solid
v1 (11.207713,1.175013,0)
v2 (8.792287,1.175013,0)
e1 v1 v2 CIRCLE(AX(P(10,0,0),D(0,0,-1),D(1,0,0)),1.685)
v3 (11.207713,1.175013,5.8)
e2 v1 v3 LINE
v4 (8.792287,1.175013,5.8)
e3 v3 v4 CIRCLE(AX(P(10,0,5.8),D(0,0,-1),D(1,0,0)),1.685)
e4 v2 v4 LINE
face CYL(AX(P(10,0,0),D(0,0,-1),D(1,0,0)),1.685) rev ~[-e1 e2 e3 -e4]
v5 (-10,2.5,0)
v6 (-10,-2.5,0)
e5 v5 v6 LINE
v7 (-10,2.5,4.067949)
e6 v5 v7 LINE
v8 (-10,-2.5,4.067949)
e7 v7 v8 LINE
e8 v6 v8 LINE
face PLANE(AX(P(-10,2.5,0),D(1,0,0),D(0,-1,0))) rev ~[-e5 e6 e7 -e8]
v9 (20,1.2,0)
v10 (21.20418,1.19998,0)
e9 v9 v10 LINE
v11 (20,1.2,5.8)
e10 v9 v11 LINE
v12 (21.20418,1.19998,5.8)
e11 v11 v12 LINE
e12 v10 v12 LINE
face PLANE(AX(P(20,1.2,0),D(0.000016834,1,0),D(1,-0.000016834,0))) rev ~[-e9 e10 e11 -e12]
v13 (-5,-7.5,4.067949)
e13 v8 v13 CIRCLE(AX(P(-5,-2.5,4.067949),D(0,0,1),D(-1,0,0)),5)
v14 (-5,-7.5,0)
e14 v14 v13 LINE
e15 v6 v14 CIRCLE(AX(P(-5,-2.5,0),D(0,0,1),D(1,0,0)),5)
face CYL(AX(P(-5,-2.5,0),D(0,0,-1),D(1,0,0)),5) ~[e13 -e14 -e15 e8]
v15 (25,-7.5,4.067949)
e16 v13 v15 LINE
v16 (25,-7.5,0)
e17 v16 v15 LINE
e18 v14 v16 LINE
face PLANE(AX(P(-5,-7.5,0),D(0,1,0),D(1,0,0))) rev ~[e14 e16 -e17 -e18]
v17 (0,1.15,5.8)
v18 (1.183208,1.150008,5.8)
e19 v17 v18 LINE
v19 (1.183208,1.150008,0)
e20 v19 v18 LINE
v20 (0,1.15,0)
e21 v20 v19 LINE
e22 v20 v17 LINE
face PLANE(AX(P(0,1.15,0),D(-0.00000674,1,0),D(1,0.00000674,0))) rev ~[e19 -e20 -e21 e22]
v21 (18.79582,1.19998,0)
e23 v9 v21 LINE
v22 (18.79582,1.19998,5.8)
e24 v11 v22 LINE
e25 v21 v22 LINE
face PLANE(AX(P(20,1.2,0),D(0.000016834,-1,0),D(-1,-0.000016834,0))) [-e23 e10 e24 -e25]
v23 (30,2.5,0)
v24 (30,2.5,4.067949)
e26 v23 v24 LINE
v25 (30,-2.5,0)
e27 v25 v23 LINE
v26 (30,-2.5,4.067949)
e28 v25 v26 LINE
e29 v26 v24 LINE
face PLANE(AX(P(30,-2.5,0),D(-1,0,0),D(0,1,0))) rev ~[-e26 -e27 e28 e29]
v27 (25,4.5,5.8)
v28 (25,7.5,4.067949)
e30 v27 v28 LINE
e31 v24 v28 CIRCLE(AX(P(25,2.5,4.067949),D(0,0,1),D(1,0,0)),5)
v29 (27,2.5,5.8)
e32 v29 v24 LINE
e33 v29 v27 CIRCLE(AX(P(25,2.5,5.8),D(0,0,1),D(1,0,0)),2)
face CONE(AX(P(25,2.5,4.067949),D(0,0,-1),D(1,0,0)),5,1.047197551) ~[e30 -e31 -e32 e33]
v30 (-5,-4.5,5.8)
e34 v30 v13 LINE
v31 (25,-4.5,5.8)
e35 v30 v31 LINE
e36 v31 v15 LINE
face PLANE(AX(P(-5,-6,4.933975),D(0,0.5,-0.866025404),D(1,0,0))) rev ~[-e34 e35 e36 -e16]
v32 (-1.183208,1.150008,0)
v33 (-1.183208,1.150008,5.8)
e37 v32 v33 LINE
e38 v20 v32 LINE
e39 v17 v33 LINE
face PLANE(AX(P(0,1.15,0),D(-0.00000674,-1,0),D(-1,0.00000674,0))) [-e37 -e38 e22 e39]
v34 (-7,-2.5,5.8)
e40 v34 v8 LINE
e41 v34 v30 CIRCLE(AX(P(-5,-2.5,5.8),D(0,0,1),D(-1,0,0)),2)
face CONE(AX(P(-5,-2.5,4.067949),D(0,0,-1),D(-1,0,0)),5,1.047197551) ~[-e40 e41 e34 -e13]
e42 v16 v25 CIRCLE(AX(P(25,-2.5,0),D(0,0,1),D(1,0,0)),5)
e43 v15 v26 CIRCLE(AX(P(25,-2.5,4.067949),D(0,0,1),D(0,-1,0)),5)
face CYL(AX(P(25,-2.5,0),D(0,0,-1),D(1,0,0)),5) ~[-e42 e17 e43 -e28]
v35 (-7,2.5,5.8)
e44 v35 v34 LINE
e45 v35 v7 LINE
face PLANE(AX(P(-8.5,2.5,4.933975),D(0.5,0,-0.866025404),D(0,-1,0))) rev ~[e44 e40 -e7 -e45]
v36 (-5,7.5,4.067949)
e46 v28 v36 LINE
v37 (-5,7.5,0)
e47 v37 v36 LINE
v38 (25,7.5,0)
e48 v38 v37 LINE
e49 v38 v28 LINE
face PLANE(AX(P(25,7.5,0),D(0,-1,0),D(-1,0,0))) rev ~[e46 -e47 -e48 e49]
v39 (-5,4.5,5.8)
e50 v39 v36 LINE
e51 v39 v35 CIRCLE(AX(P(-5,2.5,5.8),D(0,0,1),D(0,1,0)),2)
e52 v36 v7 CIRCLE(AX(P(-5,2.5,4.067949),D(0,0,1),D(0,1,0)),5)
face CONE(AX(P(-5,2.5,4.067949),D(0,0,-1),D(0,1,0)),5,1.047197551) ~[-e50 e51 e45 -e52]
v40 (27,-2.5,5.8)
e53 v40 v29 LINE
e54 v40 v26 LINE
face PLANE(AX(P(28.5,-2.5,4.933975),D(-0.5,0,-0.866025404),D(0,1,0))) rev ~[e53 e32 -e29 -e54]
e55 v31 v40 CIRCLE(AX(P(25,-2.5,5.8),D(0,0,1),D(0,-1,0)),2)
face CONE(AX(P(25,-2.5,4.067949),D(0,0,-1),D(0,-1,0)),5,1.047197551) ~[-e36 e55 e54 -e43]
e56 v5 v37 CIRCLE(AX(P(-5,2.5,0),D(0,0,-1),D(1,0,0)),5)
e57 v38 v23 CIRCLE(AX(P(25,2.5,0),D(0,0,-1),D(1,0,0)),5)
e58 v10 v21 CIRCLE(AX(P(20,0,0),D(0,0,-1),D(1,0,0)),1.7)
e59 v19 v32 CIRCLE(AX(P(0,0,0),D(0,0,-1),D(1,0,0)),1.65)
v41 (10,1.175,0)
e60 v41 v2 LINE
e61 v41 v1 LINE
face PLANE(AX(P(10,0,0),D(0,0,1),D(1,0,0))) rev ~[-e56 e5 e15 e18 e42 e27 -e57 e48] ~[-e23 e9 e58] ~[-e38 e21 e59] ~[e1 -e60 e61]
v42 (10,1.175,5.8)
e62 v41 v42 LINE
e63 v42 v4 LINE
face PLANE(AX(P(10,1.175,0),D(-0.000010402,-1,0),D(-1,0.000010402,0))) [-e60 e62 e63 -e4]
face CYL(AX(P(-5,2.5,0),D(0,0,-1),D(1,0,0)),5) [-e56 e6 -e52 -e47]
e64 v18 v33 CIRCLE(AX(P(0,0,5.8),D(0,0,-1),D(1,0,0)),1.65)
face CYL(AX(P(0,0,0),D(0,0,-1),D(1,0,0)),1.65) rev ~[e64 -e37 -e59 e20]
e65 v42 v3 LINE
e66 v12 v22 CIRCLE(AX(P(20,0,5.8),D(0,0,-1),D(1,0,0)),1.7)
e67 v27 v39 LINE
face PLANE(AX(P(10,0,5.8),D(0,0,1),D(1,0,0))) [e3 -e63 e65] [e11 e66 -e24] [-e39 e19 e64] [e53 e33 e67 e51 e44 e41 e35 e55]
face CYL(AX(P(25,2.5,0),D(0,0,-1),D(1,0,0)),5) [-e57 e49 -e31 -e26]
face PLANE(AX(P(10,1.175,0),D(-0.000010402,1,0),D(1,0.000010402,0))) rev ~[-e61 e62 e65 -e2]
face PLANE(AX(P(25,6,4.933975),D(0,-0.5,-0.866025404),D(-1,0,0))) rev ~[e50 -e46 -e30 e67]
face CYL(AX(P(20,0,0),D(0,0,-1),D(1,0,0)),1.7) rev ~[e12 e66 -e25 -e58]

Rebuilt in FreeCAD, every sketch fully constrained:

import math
import FreeCAD as App
import Part
import Sketcher

V = App.Vector


def edges_at(feature, points):
    """Names of the edges that pass closest to the given points."""
    edges = feature.Shape.Edges
    near = lambda p: min(range(len(edges)), key=lambda i: edges[i].distToShape(Part.Vertex(*p))[0])
    return sorted({f"Edge{near(p) + 1}" for p in points})

doc = App.newDocument("Part")
params = doc.addObject("Spreadsheet::Sheet", "Params")
for row, (alias, value) in enumerate([
    ("sketch1_radius", "5 mm"),
    ("sketch1_radius2", "1.7 mm"),
    ("sketch1_width", "30 mm"),
    ("sketch1_height", "5 mm"),
    ("sketch1_radius3", "1.65 mm"),
    ("pad1_length", "5.8 mm"),
    ("chamfer_size", "3 mm"),
], start=1):
    params.set(f"A{row}", alias)
    params.set(f"B{row}", "=" + value)
    params.setAlias(f"B{row}", alias)

body = doc.addObject("PartDesign::Body", "Body")

# Sketch on XY plane
sketch1 = doc.addObject("Sketcher::SketchObject", "Sketch")
body.addObject(sketch1)
sketch1.AttachmentSupport = (doc.XY_Plane, [""])
sketch1.MapMode = "FlatFace"
sketch1.addGeometry([
    Part.ArcOfCircle(Part.Circle(V(-5, -2.5, 0), V(0, 0, 1), 5), math.radians(180), math.radians(270)),  # 0
    Part.LineSegment(V(-5, -7.5, 0), V(25, -7.5, 0)),  # 1
    Part.ArcOfCircle(Part.Circle(V(25, -2.5, 0), V(0, 0, 1), 5), math.radians(-90), math.radians(0)),  # 2
    Part.LineSegment(V(30, -2.5, 0), V(30, 2.5, 0)),  # 3
    Part.ArcOfCircle(Part.Circle(V(25, 2.5, 0), V(0, 0, 1), 5), math.radians(0), math.radians(90)),  # 4
    Part.LineSegment(V(25, 7.5, 0), V(-5, 7.5, 0)),  # 5
    Part.ArcOfCircle(Part.Circle(V(-5, 2.5, 0), V(0, 0, 1), 5), math.radians(90), math.radians(180)),  # 6
    Part.LineSegment(V(-10, 2.5, 0), V(-10, -2.5, 0)),  # 7
    Part.LineSegment(V(-1.2, 1.1, 0), V(1.2, 1.1, 0)),  # 8
    Part.ArcOfCircle(Part.Circle(V(0, 0, 0), V(0, 0, 1), 1.6), math.radians(136), math.radians(404)),  # 9
    Part.LineSegment(V(8.8, 1.2, 0), V(11.2, 1.2, 0)),  # 10
    Part.ArcOfCircle(Part.Circle(V(10, 0, 0), V(0, 0, 1), 1.7), math.radians(136), math.radians(404)),  # 11
    Part.LineSegment(V(18.8, 1.2, 0), V(21.2, 1.2, 0)),  # 12
    Part.ArcOfCircle(Part.Circle(V(20, 0, 0), V(0, 0, 1), 1.7), math.radians(135), math.radians(405)),  # 13
], False)
sketch1.addConstraint([
    Sketcher.Constraint("Tangent", 0, 2, 1, 1),
    Sketcher.Constraint("Tangent", 1, 2, 2, 1),
    Sketcher.Constraint("Tangent", 2, 2, 3, 1),
    Sketcher.Constraint("Tangent", 3, 2, 4, 1),
    Sketcher.Constraint("Tangent", 4, 2, 5, 1),
    Sketcher.Constraint("Tangent", 5, 2, 6, 1),
    Sketcher.Constraint("Tangent", 6, 2, 7, 1),
    Sketcher.Constraint("Tangent", 7, 2, 0, 1),
    Sketcher.Constraint("Coincident", 8, 1, 9, 1),
    Sketcher.Constraint("Coincident", 9, 2, 8, 2),
    Sketcher.Constraint("Coincident", 10, 1, 11, 1),
    Sketcher.Constraint("Coincident", 11, 2, 10, 2),
    Sketcher.Constraint("Coincident", 12, 1, 13, 1),
    Sketcher.Constraint("Coincident", 13, 2, 12, 2),
    Sketcher.Constraint("Horizontal", 1),
    Sketcher.Constraint("Vertical", 3),
    Sketcher.Constraint("Horizontal", 5),
    Sketcher.Constraint("Vertical", 7),
    Sketcher.Constraint("Horizontal", 8),
    Sketcher.Constraint("Horizontal", 10),
    Sketcher.Constraint("Horizontal", 12),
    Sketcher.Constraint("Coincident", 9, 3, -1, 1),
    Sketcher.Constraint("Equal", 0, 2),
    Sketcher.Constraint("Equal", 2, 4),
    Sketcher.Constraint("Equal", 4, 6),
    Sketcher.Constraint("PointOnObject", 11, 3, -1),
    Sketcher.Constraint("PointOnObject", 13, 3, -1),
    Sketcher.Constraint("Radius", 0, 5.0),
    Sketcher.Constraint("Radius", 13, 1.7),
    Sketcher.Constraint("DistanceX", 1, 1, 1, 2, 30.0),
    Sketcher.Constraint("DistanceY", 3, 1, 3, 2, 5.0),
    Sketcher.Constraint("Radius", 9, 1.65),
    Sketcher.Constraint("DistanceX", 0, 3, -1, 1, 5.0),
    Sketcher.Constraint("DistanceX", -1, 1, 11, 3, 10.0),
    Sketcher.Constraint("DistanceX", -1, 1, 13, 3, 20.0),
    Sketcher.Constraint("Radius", 11, 1.685),
    Sketcher.Constraint("DistanceY", 0, 3, -1, 1, 2.5),
    Sketcher.Constraint("DistanceY", -1, 1, 12, 1, 1.2),
    Sketcher.Constraint("DistanceY", -1, 1, 8, 1, 1.15),
    Sketcher.Constraint("DistanceX", 10, 1, 10, 2, 2.4154),
])
sketch1.setExpression("Constraints[27]", "Params.sketch1_radius")
sketch1.setExpression("Constraints[28]", "Params.sketch1_radius2")
sketch1.setExpression("Constraints[29]", "Params.sketch1_width")
sketch1.setExpression("Constraints[30]", "Params.sketch1_height")
sketch1.setExpression("Constraints[31]", "Params.sketch1_radius3")
pad1 = doc.addObject("PartDesign::Pad", "Pad")
body.addObject(pad1)
pad1.Profile = sketch1
pad1.setExpression("Length", "Params.pad1_length")
doc.recompute()

chamfer = doc.addObject("PartDesign::Chamfer", "Chamfer")
body.addObject(chamfer)
chamfer.Base = (pad1, edges_at(pad1, [
    (28.535, -6.035, 5.8),
    (30, 0, 5.8),
    (28.535, 6.035, 5.8),
    (10, 7.5, 5.8),
    (-8.536, 6.035, 5.8),
    (-10, 0, 5.8),
    (-8.536, -6.035, 5.8),
    (10, -7.5, 5.8),
]))
chamfer.ChamferType = "Distance and Angle"
chamfer.setExpression("Size", "Params.chamfer_size")
chamfer.Angle = 30
chamfer.FlipDirection = True

doc.recompute()
